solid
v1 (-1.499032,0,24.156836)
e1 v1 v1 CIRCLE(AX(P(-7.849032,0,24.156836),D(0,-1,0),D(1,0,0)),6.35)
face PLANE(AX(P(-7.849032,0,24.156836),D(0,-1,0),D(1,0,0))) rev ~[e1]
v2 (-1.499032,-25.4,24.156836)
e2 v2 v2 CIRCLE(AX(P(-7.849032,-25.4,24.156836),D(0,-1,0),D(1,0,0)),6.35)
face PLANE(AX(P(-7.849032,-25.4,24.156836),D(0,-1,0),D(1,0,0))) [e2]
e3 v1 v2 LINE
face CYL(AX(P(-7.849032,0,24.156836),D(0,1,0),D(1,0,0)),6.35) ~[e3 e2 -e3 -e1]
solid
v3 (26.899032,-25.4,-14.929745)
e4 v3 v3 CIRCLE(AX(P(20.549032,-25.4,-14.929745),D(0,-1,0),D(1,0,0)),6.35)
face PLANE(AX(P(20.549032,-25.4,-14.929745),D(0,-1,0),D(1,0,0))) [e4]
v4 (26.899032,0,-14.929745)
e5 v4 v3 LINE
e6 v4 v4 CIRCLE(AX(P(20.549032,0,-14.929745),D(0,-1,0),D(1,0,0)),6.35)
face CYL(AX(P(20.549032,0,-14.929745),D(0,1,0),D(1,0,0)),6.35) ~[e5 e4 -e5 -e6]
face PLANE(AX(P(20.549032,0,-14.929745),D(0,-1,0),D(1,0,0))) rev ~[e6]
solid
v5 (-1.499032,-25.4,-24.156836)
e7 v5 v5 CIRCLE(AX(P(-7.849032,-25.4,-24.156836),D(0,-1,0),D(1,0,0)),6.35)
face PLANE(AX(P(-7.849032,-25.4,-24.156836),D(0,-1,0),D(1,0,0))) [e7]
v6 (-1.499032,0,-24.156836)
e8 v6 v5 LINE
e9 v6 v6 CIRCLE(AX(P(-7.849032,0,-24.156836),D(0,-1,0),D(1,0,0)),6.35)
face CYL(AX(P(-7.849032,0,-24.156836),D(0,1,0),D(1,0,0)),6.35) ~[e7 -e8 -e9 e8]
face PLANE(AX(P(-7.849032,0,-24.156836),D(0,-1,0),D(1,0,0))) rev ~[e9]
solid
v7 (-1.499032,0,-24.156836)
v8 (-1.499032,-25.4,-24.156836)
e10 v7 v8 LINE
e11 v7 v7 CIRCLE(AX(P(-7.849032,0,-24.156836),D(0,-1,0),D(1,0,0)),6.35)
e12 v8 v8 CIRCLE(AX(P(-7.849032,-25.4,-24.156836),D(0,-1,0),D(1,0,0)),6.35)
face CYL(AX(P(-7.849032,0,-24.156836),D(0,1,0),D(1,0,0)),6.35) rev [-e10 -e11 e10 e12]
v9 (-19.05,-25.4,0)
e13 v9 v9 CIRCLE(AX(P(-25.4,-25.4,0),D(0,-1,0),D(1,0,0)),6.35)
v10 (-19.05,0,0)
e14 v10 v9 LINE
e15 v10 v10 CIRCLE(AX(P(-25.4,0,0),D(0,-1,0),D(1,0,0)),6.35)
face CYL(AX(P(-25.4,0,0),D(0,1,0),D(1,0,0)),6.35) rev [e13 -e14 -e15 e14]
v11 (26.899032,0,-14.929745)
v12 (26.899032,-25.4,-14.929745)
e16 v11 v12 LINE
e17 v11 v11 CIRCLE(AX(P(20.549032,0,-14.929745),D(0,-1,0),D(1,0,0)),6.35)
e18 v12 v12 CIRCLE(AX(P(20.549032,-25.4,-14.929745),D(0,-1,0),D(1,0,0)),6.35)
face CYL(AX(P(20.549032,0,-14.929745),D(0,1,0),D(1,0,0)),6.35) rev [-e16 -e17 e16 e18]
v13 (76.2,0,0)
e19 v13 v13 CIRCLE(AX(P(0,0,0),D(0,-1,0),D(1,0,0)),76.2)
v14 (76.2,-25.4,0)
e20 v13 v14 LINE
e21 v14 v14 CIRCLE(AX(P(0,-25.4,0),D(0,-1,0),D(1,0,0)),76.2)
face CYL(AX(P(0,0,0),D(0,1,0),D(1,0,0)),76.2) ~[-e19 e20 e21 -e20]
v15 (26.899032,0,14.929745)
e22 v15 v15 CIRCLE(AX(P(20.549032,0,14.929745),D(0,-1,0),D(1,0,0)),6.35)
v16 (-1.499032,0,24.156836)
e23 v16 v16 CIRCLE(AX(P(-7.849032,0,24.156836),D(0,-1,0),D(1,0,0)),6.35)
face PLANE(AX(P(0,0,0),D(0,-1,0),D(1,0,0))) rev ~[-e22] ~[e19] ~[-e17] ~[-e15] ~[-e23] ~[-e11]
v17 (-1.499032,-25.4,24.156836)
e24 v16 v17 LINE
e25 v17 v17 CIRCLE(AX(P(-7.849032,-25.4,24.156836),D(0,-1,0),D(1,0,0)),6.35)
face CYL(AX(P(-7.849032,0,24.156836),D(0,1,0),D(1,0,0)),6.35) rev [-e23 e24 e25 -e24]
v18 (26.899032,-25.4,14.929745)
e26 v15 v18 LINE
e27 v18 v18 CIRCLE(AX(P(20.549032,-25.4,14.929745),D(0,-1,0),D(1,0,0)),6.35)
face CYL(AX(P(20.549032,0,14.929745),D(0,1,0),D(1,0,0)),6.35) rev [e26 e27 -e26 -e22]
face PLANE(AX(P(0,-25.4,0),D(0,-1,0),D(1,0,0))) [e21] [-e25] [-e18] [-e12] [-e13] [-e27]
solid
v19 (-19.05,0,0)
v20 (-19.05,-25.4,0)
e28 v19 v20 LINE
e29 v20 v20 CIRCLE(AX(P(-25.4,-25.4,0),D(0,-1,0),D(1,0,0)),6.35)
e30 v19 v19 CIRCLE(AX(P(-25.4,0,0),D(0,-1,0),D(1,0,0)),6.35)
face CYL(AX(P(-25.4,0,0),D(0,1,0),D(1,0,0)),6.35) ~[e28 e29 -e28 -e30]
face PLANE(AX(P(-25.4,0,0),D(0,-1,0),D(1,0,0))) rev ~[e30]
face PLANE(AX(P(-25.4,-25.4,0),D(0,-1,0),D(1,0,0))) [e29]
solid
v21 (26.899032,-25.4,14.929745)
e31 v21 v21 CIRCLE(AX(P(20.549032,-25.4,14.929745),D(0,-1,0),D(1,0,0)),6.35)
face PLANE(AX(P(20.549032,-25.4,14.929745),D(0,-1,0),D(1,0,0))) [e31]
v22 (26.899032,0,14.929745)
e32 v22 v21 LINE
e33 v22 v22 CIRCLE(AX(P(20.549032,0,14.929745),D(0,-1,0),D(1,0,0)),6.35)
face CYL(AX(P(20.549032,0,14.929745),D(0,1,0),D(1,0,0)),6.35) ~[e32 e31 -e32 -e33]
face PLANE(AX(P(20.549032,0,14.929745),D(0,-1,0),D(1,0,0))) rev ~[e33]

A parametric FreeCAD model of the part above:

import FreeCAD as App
import Part
import Sketcher
from FreeCAD import Vector
Q = App.Units.Quantity

doc = App.newDocument("Part")
body = doc.addObject("PartDesign::Body", "Body")
body.AllowCompound = True

# Sketch on XZ plane
sketch1 = body.newObject("Sketcher::SketchObject", "Sketch")
sketch1.AttachmentSupport = (doc.getObject("XZ_Plane"), [""])
sketch1.MapMode = "FlatFace"
sketch1.addGeometry(Part.Circle(Vector(-8, 24, 0), Vector(0, 0, 1), 6), False)
sketch1.addGeometry(Part.Circle(Vector(-8, -24, 0), Vector(0, 0, 1), 6), False)
sketch1.addGeometry(Part.Circle(Vector(21, 15, 0), Vector(0, 0, 1), 6), False)
sketch1.addGeometry(Part.Circle(Vector(21, -15, 0), Vector(0, 0, 1), 6), False)
sketch1.addGeometry(Part.Circle(Vector(-25, 0, 0), Vector(0, 0, 1), 6), False)
sketch1.addConstraint(Sketcher.Constraint("Equal", 0, 1))
sketch1.addConstraint(Sketcher.Constraint("Equal", 1, 2))
sketch1.addConstraint(Sketcher.Constraint("Equal", 2, 3))
sketch1.addConstraint(Sketcher.Constraint("Equal", 3, 4))
sketch1.addConstraint(Sketcher.Constraint("Symmetric", 0, 3, 1, 3, -1))
sketch1.addConstraint(Sketcher.Constraint("Symmetric", 2, 3, 3, 3, -1))
sketch1.addConstraint(Sketcher.Constraint("PointOnObject", 4, 3, -1))
sketch1.addConstraint(Sketcher.Constraint("Diameter", 0, Q("0.5 in")))
sketch1.addConstraint(Sketcher.Constraint("DistanceX", 4, 3, -1, 1, Q("1 in")))
sketch1.addConstraint(Sketcher.Constraint("DistanceY", 1, 3, 0, 3, 48.313672))
sketch1.addConstraint(Sketcher.Constraint("DistanceY", 2, 3, 0, 3, 9.227091))
sketch1.addConstraint(Sketcher.Constraint("DistanceX", 0, 3, -1, 1, 7.849032))
sketch1.addConstraint(Sketcher.Constraint("DistanceX", -1, 1, 2, 3, 20.549032))
pad1 = body.newObject("PartDesign::Pad", "Pad")
pad1.Profile = sketch1
pad1.Length = Q("1 in")
body2 = doc.addObject("PartDesign::Body", "Body001")

# Sketch on XZ plane
sketch2 = body2.newObject("Sketcher::SketchObject", "Sketch001")
sketch2.AttachmentSupport = (doc.getObject("XZ_Plane001"), [""])
sketch2.MapMode = "FlatFace"
sketch2.addGeometry(Part.Circle(Vector(0, 0, 0), Vector(0, 0, 1), 76), False)
sketch2.addGeometry(Part.Circle(Vector(-8, -24, 0), Vector(0, 0, 1), 6), False)
sketch2.addGeometry(Part.Circle(Vector(21, -15, 0), Vector(0, 0, 1), 6), False)
sketch2.addGeometry(Part.Circle(Vector(-25, 0, 0), Vector(0, 0, 1), 6), False)
sketch2.addGeometry(Part.Circle(Vector(-8, 24, 0), Vector(0, 0, 1), 6), False)
sketch2.addGeometry(Part.Circle(Vector(21, 15, 0), Vector(0, 0, 1), 6), False)
sketch2.addConstraint(Sketcher.Constraint("Coincident", 0, 3, -1, 1))
sketch2.addConstraint(Sketcher.Constraint("Equal", 1, 2))
sketch2.addConstraint(Sketcher.Constraint("Equal", 2, 3))
sketch2.addConstraint(Sketcher.Constraint("Equal", 3, 4))
sketch2.addConstraint(Sketcher.Constraint("Equal", 4, 5))
sketch2.addConstraint(Sketcher.Constraint("Symmetric", 1, 3, 4, 3, -1))
sketch2.addConstraint(Sketcher.Constraint("Symmetric", 2, 3, 5, 3, -1))
sketch2.addConstraint(Sketcher.Constraint("PointOnObject", 3, 3, -1))
sketch2.addConstraint(Sketcher.Constraint("Diameter", 0, Q("6 in")))
sketch2.addConstraint(Sketcher.Constraint("Diameter", 1, Q("0.5 in")))
sketch2.addConstraint(Sketcher.Constraint("DistanceX", 3, 3, -1, 1, Q("1 in")))
sketch2.addConstraint(Sketcher.Constraint("DistanceY", 1, 3, 2, 3, 9.227091))
sketch2.addConstraint(Sketcher.Constraint("DistanceY", 2, 3, 4, 3, 39.086581))
sketch2.addConstraint(Sketcher.Constraint("DistanceX", 1, 3, -1, 1, 7.849032))
sketch2.addConstraint(Sketcher.Constraint("DistanceX", -1, 1, 2, 3, 20.549032))
pad2 = body2.newObject("PartDesign::Pad", "Pad001")
pad2.Profile = sketch2
pad2.Length = Q("1 in")

doc.recompute()
